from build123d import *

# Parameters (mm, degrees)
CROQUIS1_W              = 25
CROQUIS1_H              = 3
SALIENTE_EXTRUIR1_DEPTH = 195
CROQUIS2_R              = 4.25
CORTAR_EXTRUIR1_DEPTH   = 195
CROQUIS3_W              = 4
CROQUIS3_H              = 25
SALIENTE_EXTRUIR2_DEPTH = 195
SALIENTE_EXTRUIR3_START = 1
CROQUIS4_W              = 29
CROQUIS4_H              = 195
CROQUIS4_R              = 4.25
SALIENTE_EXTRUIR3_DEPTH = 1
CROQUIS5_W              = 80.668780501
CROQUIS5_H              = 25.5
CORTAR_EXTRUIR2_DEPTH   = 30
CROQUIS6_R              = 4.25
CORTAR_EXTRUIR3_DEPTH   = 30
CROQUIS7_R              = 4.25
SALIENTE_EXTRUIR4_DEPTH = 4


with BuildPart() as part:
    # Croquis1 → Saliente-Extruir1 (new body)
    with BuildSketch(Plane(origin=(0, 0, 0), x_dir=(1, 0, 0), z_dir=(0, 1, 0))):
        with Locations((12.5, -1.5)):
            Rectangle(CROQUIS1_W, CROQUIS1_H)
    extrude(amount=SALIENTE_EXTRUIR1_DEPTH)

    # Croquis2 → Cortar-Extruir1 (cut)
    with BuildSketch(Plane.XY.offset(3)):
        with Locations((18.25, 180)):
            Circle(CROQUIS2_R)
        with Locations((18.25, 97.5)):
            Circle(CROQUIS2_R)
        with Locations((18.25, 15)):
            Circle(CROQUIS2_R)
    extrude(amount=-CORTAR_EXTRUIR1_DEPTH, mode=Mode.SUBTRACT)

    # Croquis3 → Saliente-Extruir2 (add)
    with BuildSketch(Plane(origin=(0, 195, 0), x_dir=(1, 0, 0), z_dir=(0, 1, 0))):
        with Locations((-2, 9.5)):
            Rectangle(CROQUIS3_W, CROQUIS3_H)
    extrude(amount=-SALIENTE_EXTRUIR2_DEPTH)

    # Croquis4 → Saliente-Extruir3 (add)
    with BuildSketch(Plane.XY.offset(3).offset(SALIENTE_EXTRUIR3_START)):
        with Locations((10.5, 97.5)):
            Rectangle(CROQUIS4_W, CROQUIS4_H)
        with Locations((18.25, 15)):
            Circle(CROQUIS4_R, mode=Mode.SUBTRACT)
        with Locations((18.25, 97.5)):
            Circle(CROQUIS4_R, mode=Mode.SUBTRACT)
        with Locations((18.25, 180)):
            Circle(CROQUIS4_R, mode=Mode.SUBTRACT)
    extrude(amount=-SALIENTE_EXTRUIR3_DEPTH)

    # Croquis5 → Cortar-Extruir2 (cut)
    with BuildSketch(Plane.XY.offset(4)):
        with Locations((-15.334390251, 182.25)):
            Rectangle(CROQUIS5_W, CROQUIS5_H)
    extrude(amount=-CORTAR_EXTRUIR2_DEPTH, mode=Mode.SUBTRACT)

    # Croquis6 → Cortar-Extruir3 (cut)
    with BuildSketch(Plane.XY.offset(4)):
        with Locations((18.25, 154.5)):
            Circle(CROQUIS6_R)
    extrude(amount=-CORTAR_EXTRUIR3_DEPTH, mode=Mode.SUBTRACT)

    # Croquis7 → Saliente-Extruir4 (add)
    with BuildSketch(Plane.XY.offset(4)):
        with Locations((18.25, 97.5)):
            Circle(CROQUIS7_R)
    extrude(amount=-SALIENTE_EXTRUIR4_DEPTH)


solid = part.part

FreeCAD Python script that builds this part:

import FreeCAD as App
import Part
import Sketcher
Q = App.Units.Quantity

doc = App.newDocument("Part")
body = doc.addObject("PartDesign::Body", "Body")

sketch1 = body.newObject("Sketcher::SketchObject", "Sketch")
sketch1.AttachmentSupport = (doc.getObject("XZ_Plane"), [""])
sketch1.MapMode = "FlatFace"
sketch1.addGeometry([
    Part.LineSegment(App.Vector(0, 0, 0), App.Vector(0, 3, 0)),
    Part.LineSegment(App.Vector(0, 3, 0), App.Vector(25, 3, 0)),
    Part.LineSegment(App.Vector(25, 3, 0), App.Vector(25, 0, 0)),
    Part.LineSegment(App.Vector(25, 0, 0), App.Vector(0, 0, 0)),
], False)
sketch1.addConstraint([
    Sketcher.Constraint("Coincident", 0, 2, 1, 1),
    Sketcher.Constraint("Coincident", 1, 2, 2, 1),
    Sketcher.Constraint("Coincident", 2, 2, 3, 1),
    Sketcher.Constraint("Coincident", 3, 2, 0, 1),
    Sketcher.Constraint("Vertical", 0),
    Sketcher.Constraint("Horizontal", 1),
    Sketcher.Constraint("Vertical", 2),
    Sketcher.Constraint("Horizontal", 3),
    Sketcher.Constraint("Coincident", 3, 2, -1, 1),
    Sketcher.Constraint("DistanceX", 1, 1, 1, 2, Q("25 mm")),
    Sketcher.Constraint("DistanceY", 0, 1, 0, 2, Q("3 mm")),
])
pad1 = body.newObject("PartDesign::Pad", "Pad")
pad1.Profile = sketch1
pad1.Length = 195
pad1.Reversed = True

sketch2 = body.newObject("Sketcher::SketchObject", "Sketch001")
sketch2.AttachmentSupport = (doc.getObject("XY_Plane"), [""])
sketch2.MapMode = "FlatFace"
sketch2.AttachmentOffset = App.Placement(App.Vector(0, 0, 3), App.Rotation())
sketch2.addGeometry([
    Part.Circle(App.Vector(18.2, 180, 0), App.Vector(0, 0, 1), 4.2),
    Part.Circle(App.Vector(18.2, 97.5, 0), App.Vector(0, 0, 1), 4.2),
    Part.Circle(App.Vector(18.2, 15, 0), App.Vector(0, 0, 1), 4.2),
], False)
sketch2.addConstraint([
    Sketcher.Constraint("Equal", 0, 1),
    Sketcher.Constraint("Equal", 1, 2),
    Sketcher.Constraint("Vertical", 0, 3, 1, 3),
    Sketcher.Constraint("Vertical", 1, 3, 2, 3),
    Sketcher.Constraint("Diameter", 0, Q("8.5 mm")),
    Sketcher.Constraint("DistanceY", -1, 1, 0, 3, Q("180 mm")),
    Sketcher.Constraint("DistanceY", -1, 1, 2, 3, Q("15 mm")),
    Sketcher.Constraint("DistanceY", -1, 1, 1, 3, Q("97.5 mm")),
    Sketcher.Constraint("DistanceX", -1, 1, 0, 3, Q("18.25 mm")),
])
pocket1 = body.newObject("PartDesign::Pocket", "Pocket")
pocket1.Profile = sketch2
pocket1.Length = 195

sketch3 = body.newObject("Sketcher::SketchObject", "Sketch002")
sketch3.AttachmentSupport = (doc.getObject("XZ_Plane"), [""])
sketch3.MapMode = "FlatFace"
sketch3.AttachmentOffset = App.Placement(App.Vector(0, 0, -195), App.Rotation())
sketch3.addGeometry([
    Part.LineSegment(App.Vector(-4, -22, 0), App.Vector(-4, 3, 0)),
    Part.LineSegment(App.Vector(-4, 3, 0), App.Vector(0, 3, 0)),
    Part.LineSegment(App.Vector(0, 3, 0), App.Vector(0, -22, 0)),
    Part.LineSegment(App.Vector(0, -22, 0), App.Vector(-4, -22, 0)),
], False)
sketch3.addConstraint([
    Sketcher.Constraint("Coincident", 0, 2, 1, 1),
    Sketcher.Constraint("Coincident", 1, 2, 2, 1),
    Sketcher.Constraint("Coincident", 2, 2, 3, 1),
    Sketcher.Constraint("Coincident", 3, 2, 0, 1),
    Sketcher.Constraint("Vertical", 0),
    Sketcher.Constraint("Horizontal", 1),
    Sketcher.Constraint("Vertical", 2),
    Sketcher.Constraint("Horizontal", 3),
    Sketcher.Constraint("PointOnObject", 1, 2, -2),
    Sketcher.Constraint("DistanceX", 1, 1, 1, 2, Q("4 mm")),
    Sketcher.Constraint("DistanceY", 0, 1, 0, 2, Q("25 mm")),
    Sketcher.Constraint("DistanceY", -1, 1, 0, 2, Q("3 mm")),
])
pad2 = body.newObject("PartDesign::Pad", "Pad001")
pad2.Profile = sketch3
pad2.Length = 195

sketch4 = body.newObject("Sketcher::SketchObject", "Sketch003")
sketch4.AttachmentSupport = (doc.getObject("XY_Plane"), [""])
sketch4.MapMode = "FlatFace"
sketch4.AttachmentOffset = App.Placement(App.Vector(0, 0, 4), App.Rotation())
sketch4.addGeometry([
    Part.LineSegment(App.Vector(-4, 195, 0), App.Vector(-4, 0, 0)),
    Part.LineSegment(App.Vector(-4, 0, 0), App.Vector(25, 0, 0)),
    Part.LineSegment(App.Vector(25, 0, 0), App.Vector(25, 195, 0)),
    Part.LineSegment(App.Vector(25, 195, 0), App.Vector(-4, 195, 0)),
    Part.Circle(App.Vector(18.2, 15, 0), App.Vector(0, 0, 1), 4.2),
    Part.Circle(App.Vector(18.2, 97.5, 0), App.Vector(0, 0, 1), 4.2),
    Part.Circle(App.Vector(18.2, 180, 0), App.Vector(0, 0, 1), 4.2),
], False)
sketch4.addConstraint([
    Sketcher.Constraint("Coincident", 0, 2, 1, 1),
    Sketcher.Constraint("Coincident", 1, 2, 2, 1),
    Sketcher.Constraint("Coincident", 2, 2, 3, 1),
    Sketcher.Constraint("Coincident", 3, 2, 0, 1),
    Sketcher.Constraint("Vertical", 0),
    Sketcher.Constraint("Horizontal", 1),
    Sketcher.Constraint("Vertical", 2),
    Sketcher.Constraint("Horizontal", 3),
    Sketcher.Constraint("Equal", 4, 5),
    Sketcher.Constraint("Equal", 5, 6),
    Sketcher.Constraint("PointOnObject", 0, 2, -1),
    Sketcher.Constraint("Vertical", 4, 3, 5, 3),
    Sketcher.Constraint("Vertical", 5, 3, 6, 3),
    Sketcher.Constraint("Diameter", 4, Q("8.5 mm")),
    Sketcher.Constraint("DistanceX", 1, 1, 1, 2, Q("29 mm")),
    Sketcher.Constraint("DistanceY", 0, 2, 0, 1, Q("195 mm")),
    Sketcher.Constraint("DistanceY", -1, 1, 4, 3, Q("15 mm")),
    Sketcher.Constraint("DistanceY", -1, 1, 6, 3, Q("180 mm")),
    Sketcher.Constraint("DistanceX", 0, 2, -1, 1, Q("4 mm")),
    Sketcher.Constraint("DistanceY", -1, 1, 5, 3, Q("97.5 mm")),
    Sketcher.Constraint("DistanceX", -1, 1, 4, 3, Q("18.25 mm")),
])
pad3 = body.newObject("PartDesign::Pad", "Pad002")
pad3.Profile = sketch4
pad3.Length = 1
pad3.Reversed = True

sketch5 = body.newObject("Sketcher::SketchObject", "Sketch004")
sketch5.AttachmentSupport = (doc.getObject("XY_Plane"), [""])
sketch5.MapMode = "FlatFace"
sketch5.AttachmentOffset = App.Placement(App.Vector(0, 0, 4), App.Rotation())
sketch5.addGeometry([
    Part.LineSegment(App.Vector(-56, 195, 0), App.Vector(-56, 170, 0)),
    Part.LineSegment(App.Vector(-56, 170, 0), App.Vector(25, 170, 0)),
    Part.LineSegment(App.Vector(25, 170, 0), App.Vector(25, 195, 0)),
    Part.LineSegment(App.Vector(25, 195, 0), App.Vector(-56, 195, 0)),
], False)
sketch5.addConstraint([
    Sketcher.Constraint("Coincident", 0, 2, 1, 1),
    Sketcher.Constraint("Coincident", 1, 2, 2, 1),
    Sketcher.Constraint("Coincident", 2, 2, 3, 1),
    Sketcher.Constraint("Coincident", 3, 2, 0, 1),
    Sketcher.Constraint("Vertical", 0),
    Sketcher.Constraint("Horizontal", 1),
    Sketcher.Constraint("Vertical", 2),
    Sketcher.Constraint("Horizontal", 3),
    Sketcher.Constraint("DistanceY", 0, 2, 0, 1, Q("25.5 mm")),
    Sketcher.Constraint("DistanceX", -1, 1, 1, 2, Q("25 mm")),
    Sketcher.Constraint("DistanceY", -1, 1, 2, 2, Q("195 mm")),
    Sketcher.Constraint("DistanceX", 1, 1, 1, 2, Q("80.668781 mm")),
])
pocket2 = body.newObject("PartDesign::Pocket", "Pocket001")
pocket2.Profile = sketch5
pocket2.Length = 30

sketch6 = body.newObject("Sketcher::SketchObject", "Sketch005")
sketch6.AttachmentSupport = (doc.getObject("XY_Plane"), [""])
sketch6.MapMode = "FlatFace"
sketch6.AttachmentOffset = App.Placement(App.Vector(0, 0, 4), App.Rotation())
sketch6.addGeometry(Part.Circle(App.Vector(18.2, 154.5, 0), App.Vector(0, 0, 1), 4.2), False)
sketch6.addConstraint([
    Sketcher.Constraint("Diameter", 0, Q("8.5 mm")),
    Sketcher.Constraint("DistanceY", -1, 1, 0, 3, Q("154.5 mm")),
    Sketcher.Constraint("DistanceX", -1, 1, 0, 3, Q("18.25 mm")),
])
pocket3 = body.newObject("PartDesign::Pocket", "Pocket002")
pocket3.Profile = sketch6
pocket3.Length = 30

sketch7 = body.newObject("Sketcher::SketchObject", "Sketch006")
sketch7.AttachmentSupport = (doc.getObject("XY_Plane"), [""])
sketch7.MapMode = "FlatFace"
sketch7.AttachmentOffset = App.Placement(App.Vector(0, 0, 4), App.Rotation())
sketch7.addGeometry(Part.Circle(App.Vector(18.2, 97.5, 0), App.Vector(0, 0, 1), 4.2), False)
sketch7.addConstraint([
    Sketcher.Constraint("Diameter", 0, Q("8.5 mm")),
    Sketcher.Constraint("DistanceY", -1, 1, 0, 3, Q("97.5 mm")),
    Sketcher.Constraint("DistanceX", -1, 1, 0, 3, Q("18.25 mm")),
])
pad4 = body.newObject("PartDesign::Pad", "Pad003")
pad4.Profile = sketch7
pad4.Length = 4
pad4.Reversed = True

doc.recompute()
